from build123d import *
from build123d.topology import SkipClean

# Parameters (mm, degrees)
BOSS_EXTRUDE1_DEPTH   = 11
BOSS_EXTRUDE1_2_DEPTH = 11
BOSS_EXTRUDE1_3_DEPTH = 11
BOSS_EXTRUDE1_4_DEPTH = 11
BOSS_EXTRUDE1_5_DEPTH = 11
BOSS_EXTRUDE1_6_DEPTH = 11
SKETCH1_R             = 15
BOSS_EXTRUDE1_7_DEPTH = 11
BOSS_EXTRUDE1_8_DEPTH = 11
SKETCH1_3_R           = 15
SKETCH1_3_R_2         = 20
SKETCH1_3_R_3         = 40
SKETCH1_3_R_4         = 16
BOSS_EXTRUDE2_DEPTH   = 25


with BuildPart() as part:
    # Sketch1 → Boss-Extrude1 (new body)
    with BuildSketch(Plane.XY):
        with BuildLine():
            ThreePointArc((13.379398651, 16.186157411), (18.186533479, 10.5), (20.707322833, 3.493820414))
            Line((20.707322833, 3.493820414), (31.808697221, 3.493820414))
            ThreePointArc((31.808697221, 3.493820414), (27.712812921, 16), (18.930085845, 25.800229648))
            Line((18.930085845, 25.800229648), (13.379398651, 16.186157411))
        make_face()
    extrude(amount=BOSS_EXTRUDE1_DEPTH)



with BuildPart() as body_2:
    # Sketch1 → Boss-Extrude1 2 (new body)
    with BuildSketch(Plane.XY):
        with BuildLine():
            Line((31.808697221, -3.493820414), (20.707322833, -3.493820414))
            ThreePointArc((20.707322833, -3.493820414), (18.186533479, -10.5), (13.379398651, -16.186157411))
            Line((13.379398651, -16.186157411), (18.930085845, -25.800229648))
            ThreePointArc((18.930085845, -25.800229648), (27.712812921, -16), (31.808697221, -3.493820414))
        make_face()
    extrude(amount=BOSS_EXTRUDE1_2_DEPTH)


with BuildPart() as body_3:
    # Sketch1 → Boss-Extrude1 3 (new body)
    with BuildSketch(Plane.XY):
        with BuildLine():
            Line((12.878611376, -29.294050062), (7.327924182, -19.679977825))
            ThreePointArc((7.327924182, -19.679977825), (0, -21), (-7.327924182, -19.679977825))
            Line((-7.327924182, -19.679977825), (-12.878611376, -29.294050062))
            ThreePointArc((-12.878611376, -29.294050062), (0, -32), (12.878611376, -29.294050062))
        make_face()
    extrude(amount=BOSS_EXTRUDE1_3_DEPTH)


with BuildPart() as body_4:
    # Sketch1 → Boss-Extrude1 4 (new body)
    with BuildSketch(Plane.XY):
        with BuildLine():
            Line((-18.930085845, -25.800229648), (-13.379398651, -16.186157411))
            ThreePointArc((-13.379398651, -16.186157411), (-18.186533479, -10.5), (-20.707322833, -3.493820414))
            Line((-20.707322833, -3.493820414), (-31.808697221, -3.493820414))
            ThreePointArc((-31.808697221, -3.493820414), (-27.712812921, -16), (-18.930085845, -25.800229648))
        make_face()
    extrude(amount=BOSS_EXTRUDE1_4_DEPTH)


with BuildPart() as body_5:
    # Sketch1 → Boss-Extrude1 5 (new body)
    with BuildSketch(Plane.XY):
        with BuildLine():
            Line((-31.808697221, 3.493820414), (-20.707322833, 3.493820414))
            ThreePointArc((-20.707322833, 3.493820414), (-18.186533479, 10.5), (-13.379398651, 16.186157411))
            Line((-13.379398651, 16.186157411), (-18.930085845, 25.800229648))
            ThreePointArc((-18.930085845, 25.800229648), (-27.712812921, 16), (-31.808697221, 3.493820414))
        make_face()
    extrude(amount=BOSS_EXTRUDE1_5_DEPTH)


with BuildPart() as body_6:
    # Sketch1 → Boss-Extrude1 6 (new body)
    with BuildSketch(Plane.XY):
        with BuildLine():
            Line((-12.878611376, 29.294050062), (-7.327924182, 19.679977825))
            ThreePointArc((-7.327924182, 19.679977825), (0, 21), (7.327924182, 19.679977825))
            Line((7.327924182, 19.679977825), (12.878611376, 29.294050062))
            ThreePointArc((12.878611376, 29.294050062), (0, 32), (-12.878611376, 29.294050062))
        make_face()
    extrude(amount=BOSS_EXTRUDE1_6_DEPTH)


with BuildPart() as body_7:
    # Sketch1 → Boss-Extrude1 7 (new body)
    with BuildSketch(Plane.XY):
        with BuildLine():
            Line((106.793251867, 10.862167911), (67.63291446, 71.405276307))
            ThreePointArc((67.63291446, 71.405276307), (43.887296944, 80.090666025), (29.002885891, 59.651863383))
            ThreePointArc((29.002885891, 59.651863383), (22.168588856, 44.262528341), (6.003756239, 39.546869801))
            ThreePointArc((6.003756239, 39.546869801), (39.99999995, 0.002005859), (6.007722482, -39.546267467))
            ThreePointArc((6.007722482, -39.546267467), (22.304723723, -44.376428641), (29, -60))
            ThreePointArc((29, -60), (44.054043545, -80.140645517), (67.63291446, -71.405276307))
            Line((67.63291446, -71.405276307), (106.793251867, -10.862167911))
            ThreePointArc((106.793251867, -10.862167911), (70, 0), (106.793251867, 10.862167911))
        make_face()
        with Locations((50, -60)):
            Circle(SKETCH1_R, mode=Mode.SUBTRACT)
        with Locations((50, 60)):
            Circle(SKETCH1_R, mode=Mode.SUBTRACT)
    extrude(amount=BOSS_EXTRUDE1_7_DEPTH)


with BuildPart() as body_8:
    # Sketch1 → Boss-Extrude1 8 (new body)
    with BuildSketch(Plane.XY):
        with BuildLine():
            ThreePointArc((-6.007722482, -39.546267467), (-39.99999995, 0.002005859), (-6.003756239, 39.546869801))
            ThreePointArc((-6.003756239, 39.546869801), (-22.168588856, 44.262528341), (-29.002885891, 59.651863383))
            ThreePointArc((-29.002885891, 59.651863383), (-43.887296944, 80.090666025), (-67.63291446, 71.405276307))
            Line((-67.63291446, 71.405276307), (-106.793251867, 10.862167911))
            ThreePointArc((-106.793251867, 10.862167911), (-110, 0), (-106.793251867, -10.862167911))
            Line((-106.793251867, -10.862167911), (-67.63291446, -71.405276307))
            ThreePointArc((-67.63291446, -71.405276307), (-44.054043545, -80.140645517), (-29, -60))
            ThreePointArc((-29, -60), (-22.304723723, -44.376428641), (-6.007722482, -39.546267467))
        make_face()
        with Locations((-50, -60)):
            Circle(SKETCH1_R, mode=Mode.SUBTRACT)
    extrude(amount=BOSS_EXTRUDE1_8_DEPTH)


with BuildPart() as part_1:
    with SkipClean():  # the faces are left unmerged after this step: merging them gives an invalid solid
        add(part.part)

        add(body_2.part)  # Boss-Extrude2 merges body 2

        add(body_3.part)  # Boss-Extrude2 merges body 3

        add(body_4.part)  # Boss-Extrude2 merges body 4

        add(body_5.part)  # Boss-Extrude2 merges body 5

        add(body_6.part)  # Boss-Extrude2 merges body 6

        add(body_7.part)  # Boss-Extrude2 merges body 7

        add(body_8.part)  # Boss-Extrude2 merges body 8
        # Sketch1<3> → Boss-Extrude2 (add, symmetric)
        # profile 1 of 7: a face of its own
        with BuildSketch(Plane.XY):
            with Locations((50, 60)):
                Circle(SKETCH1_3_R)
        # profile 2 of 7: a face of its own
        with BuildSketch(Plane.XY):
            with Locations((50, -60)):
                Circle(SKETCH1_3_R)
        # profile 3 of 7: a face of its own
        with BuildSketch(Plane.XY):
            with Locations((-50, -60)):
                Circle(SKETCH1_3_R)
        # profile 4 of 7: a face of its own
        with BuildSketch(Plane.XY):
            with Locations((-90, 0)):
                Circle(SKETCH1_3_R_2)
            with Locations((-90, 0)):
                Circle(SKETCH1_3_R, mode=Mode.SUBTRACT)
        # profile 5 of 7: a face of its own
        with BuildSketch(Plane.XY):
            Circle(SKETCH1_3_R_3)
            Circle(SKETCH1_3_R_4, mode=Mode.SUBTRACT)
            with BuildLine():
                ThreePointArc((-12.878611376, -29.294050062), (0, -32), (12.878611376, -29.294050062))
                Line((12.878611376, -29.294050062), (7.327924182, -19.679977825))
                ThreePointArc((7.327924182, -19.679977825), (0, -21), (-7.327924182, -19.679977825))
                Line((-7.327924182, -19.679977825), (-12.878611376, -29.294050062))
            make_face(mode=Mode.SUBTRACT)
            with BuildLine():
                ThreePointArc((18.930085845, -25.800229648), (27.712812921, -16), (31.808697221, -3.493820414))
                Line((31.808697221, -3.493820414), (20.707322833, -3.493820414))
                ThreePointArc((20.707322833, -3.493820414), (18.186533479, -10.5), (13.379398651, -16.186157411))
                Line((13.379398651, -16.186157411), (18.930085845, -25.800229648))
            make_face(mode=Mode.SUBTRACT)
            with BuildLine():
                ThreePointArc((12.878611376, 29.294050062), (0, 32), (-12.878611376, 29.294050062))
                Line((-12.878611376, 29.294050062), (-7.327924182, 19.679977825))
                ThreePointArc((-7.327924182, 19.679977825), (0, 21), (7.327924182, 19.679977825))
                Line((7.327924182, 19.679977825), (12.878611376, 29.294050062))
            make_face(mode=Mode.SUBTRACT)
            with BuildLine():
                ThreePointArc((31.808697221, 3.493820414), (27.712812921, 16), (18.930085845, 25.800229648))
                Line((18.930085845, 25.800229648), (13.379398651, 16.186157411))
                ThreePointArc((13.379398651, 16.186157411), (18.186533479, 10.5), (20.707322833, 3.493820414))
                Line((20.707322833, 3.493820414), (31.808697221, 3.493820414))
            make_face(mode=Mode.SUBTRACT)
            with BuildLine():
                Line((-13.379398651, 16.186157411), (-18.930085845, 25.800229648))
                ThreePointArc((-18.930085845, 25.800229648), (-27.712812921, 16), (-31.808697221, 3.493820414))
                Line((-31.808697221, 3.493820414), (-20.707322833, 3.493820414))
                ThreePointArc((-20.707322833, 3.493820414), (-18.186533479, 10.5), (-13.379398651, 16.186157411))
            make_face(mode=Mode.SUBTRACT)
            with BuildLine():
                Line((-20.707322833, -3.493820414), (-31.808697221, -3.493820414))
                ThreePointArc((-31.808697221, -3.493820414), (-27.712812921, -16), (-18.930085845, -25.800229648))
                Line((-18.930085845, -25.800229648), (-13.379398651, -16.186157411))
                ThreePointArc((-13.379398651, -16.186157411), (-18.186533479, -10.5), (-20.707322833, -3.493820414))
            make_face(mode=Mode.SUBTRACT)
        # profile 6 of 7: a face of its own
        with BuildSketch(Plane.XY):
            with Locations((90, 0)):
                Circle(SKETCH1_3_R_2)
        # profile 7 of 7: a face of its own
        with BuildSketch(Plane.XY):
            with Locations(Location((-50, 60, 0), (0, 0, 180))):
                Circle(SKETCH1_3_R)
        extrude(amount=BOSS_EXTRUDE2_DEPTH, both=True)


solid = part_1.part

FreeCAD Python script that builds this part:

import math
import FreeCAD as App
import Part
import Sketcher
Q = App.Units.Quantity

doc = App.newDocument("Part")
body = doc.addObject("PartDesign::Body", "Body")

# Sketch on XY plane
sketch1 = body.newObject("Sketcher::SketchObject", "Sketch")
sketch1.AttachmentSupport = (doc.getObject("XY_Plane"), [""])
sketch1.MapMode = "FlatFace"
sketch1.addGeometry(Part.ArcOfCircle(Part.Circle(App.Vector(0, 0, 0), App.Vector(0, 0, 1), 21), math.radians(10), math.radians(50)), False)
sketch1.addGeometry(Part.LineSegment(App.Vector(21, 3, 0), App.Vector(32, 3, 0)), False)
sketch1.addGeometry(Part.ArcOfCircle(Part.Circle(App.Vector(0, 0, 0), App.Vector(0, 0, 1), 32), math.radians(6), math.radians(54)), False)
sketch1.addGeometry(Part.LineSegment(App.Vector(19, 26, 0), App.Vector(13, 16, 0)), False)
sketch1.addConstraint(Sketcher.Constraint("Coincident", 0, 1, 1, 1))
sketch1.addConstraint(Sketcher.Constraint("Coincident", 1, 2, 2, 1))
sketch1.addConstraint(Sketcher.Constraint("Coincident", 2, 2, 3, 1))
sketch1.addConstraint(Sketcher.Constraint("Coincident", 3, 2, 0, 2))
sketch1.addConstraint(Sketcher.Constraint("Horizontal", 1))
sketch1.addConstraint(Sketcher.Constraint("Coincident", 0, 3, -1, 1))
sketch1.addConstraint(Sketcher.Constraint("Coincident", 2, 3, -1, 1))
sketch1.addConstraint(Sketcher.Constraint("Radius", 0, 21.0))
sketch1.addConstraint(Sketcher.Constraint("Radius", 2, 32.0))
sketch1.addConstraint(Sketcher.Constraint("Angle", 3, Q("-120 deg")))
sketch1.addConstraint(Sketcher.Constraint("DistanceX", -1, 1, 3, 2, 13.379399))
sketch1.addConstraint(Sketcher.Constraint("DistanceX", 3, 2, 1, 2, 18.429299))
pad1 = body.newObject("PartDesign::Pad", "Pad")
pad1.Profile = sketch1
pad1.Length = 11
body2 = doc.addObject("PartDesign::Body", "Body001")

# Sketch on XY plane
sketch2 = body2.newObject("Sketcher::SketchObject", "Sketch001")
sketch2.AttachmentSupport = (doc.getObject("XY_Plane001"), [""])
sketch2.MapMode = "FlatFace"
sketch2.addGeometry(Part.LineSegment(App.Vector(32, -3, 0), App.Vector(21, -3, 0)), False)
sketch2.addGeometry(Part.ArcOfCircle(Part.Circle(App.Vector(0, 0, 0), App.Vector(0, 0, 1), 21), math.radians(-50), math.radians(-10)), False)
sketch2.addGeometry(Part.LineSegment(App.Vector(13, -16, 0), App.Vector(19, -26, 0)), False)
sketch2.addGeometry(Part.ArcOfCircle(Part.Circle(App.Vector(0, 0, 0), App.Vector(0, 0, 1), 32), math.radians(-54), math.radians(-6)), False)
sketch2.addConstraint(Sketcher.Constraint("Coincident", 0, 2, 1, 2))
sketch2.addConstraint(Sketcher.Constraint("Coincident", 1, 1, 2, 1))
sketch2.addConstraint(Sketcher.Constraint("Coincident", 2, 2, 3, 1))
sketch2.addConstraint(Sketcher.Constraint("Coincident", 3, 2, 0, 1))
sketch2.addConstraint(Sketcher.Constraint("Horizontal", 0))
sketch2.addConstraint(Sketcher.Constraint("Coincident", 1, 3, -1, 1))
sketch2.addConstraint(Sketcher.Constraint("Coincident", 3, 3, -1, 1))
sketch2.addConstraint(Sketcher.Constraint("Radius", 1, 21.0))
sketch2.addConstraint(Sketcher.Constraint("Radius", 3, 32.0))
sketch2.addConstraint(Sketcher.Constraint("Angle", 2, Q("-60 deg")))
sketch2.addConstraint(Sketcher.Constraint("DistanceX", -1, 1, 1, 1, 13.379399))
sketch2.addConstraint(Sketcher.Constraint("DistanceX", 1, 1, 3, 2, 18.429299))
pad2 = body2.newObject("PartDesign::Pad", "Pad001")
pad2.Profile = sketch2
pad2.Length = 11
body3 = doc.addObject("PartDesign::Body", "Body002")

# Sketch on XY plane
sketch3 = body3.newObject("Sketcher::SketchObject", "Sketch002")
sketch3.AttachmentSupport = (doc.getObject("XY_Plane002"), [""])
sketch3.MapMode = "FlatFace"
sketch3.addGeometry(Part.LineSegment(App.Vector(13, -29, 0), App.Vector(7, -20, 0)), False)
sketch3.addGeometry(Part.ArcOfCircle(Part.Circle(App.Vector(0, 0, 0), App.Vector(0, 0, 1), 21), math.radians(-110), math.radians(-70)), False)
sketch3.addGeometry(Part.LineSegment(App.Vector(-7, -20, 0), App.Vector(-13, -29, 0)), False)
sketch3.addGeometry(Part.ArcOfCircle(Part.Circle(App.Vector(0, 0, 0), App.Vector(0, 0, 1), 32), math.radians(-114), math.radians(-66)), False)
sketch3.addConstraint(Sketcher.Constraint("Coincident", 0, 2, 1, 2))
sketch3.addConstraint(Sketcher.Constraint("Coincident", 1, 1, 2, 1))
sketch3.addConstraint(Sketcher.Constraint("Coincident", 2, 2, 3, 1))
sketch3.addConstraint(Sketcher.Constraint("Coincident", 3, 2, 0, 1))
sketch3.addConstraint(Sketcher.Constraint("Coincident", 1, 3, -1, 1))
sketch3.addConstraint(Sketcher.Constraint("Coincident", 3, 3, -1, 1))
sketch3.addConstraint(Sketcher.Constraint("Horizontal", 0, 2, 1, 1))
sketch3.addConstraint(Sketcher.Constraint("Horizontal", 2, 2, 3, 2))
sketch3.addConstraint(Sketcher.Constraint("Radius", 1, 21.0))
sketch3.addConstraint(Sketcher.Constraint("Radius", 3, 32.0))
sketch3.addConstraint(Sketcher.Constraint("Angle", 0, Q("120 deg")))
sketch3.addConstraint(Sketcher.Constraint("DistanceX", 2, 2, -1, 1, 12.878611))
pad3 = body3.newObject("PartDesign::Pad", "Pad002")
pad3.Profile = sketch3
pad3.Length = 11
body4 = doc.addObject("PartDesign::Body", "Body003")

# Sketch on XY plane
sketch4 = body4.newObject("Sketcher::SketchObject", "Sketch003")
sketch4.AttachmentSupport = (doc.getObject("XY_Plane003"), [""])
sketch4.MapMode = "FlatFace"
sketch4.addGeometry(Part.LineSegment(App.Vector(-19, -26, 0), App.Vector(-13, -16, 0)), False)
sketch4.addGeometry(Part.ArcOfCircle(Part.Circle(App.Vector(0, 0, 0), App.Vector(0, 0, 1), 21), math.radians(-170), math.radians(-130)), False)
sketch4.addGeometry(Part.LineSegment(App.Vector(-21, -3, 0), App.Vector(-32, -3, 0)), False)
sketch4.addGeometry(Part.ArcOfCircle(Part.Circle(App.Vector(0, 0, 0), App.Vector(0, 0, 1), 32), math.radians(-174), math.radians(-126)), False)
sketch4.addConstraint(Sketcher.Constraint("Coincident", 0, 2, 1, 2))
sketch4.addConstraint(Sketcher.Constraint("Coincident", 1, 1, 2, 1))
sketch4.addConstraint(Sketcher.Constraint("Coincident", 2, 2, 3, 1))
sketch4.addConstraint(Sketcher.Constraint("Coincident", 3, 2, 0, 1))
sketch4.addConstraint(Sketcher.Constraint("Horizontal", 2))
sketch4.addConstraint(Sketcher.Constraint("Coincident", 1, 3, -1, 1))
sketch4.addConstraint(Sketcher.Constraint("Coincident", 3, 3, -1, 1))
sketch4.addConstraint(Sketcher.Constraint("Radius", 1, 21.0))
sketch4.addConstraint(Sketcher.Constraint("Radius", 3, 32.0))
sketch4.addConstraint(Sketcher.Constraint("Angle", 0, Q("60 deg")))
sketch4.addConstraint(Sketcher.Constraint("DistanceX", 0, 2, -1, 1, 13.379399))
sketch4.addConstraint(Sketcher.Constraint("DistanceX", 2, 2, 0, 2, 18.429299))
pad4 = body4.newObject("PartDesign::Pad", "Pad003")
pad4.Profile = sketch4
pad4.Length = 11
body5 = doc.addObject("PartDesign::Body", "Body004")

# Sketch on XY plane
sketch5 = body5.newObject("Sketcher::SketchObject", "Sketch004")
sketch5.AttachmentSupport = (doc.getObject("XY_Plane004"), [""])
sketch5.MapMode = "FlatFace"
sketch5.addGeometry(Part.LineSegment(App.Vector(-32, 3, 0), App.Vector(-21, 3, 0)), False)
sketch5.addGeometry(Part.ArcOfCircle(Part.Circle(App.Vector(0, 0, 0), App.Vector(0, 0, 1), 21), math.radians(130), math.radians(170)), False)
sketch5.addGeometry(Part.LineSegment(App.Vector(-13, 16, 0), App.Vector(-19, 26, 0)), False)
sketch5.addGeometry(Part.ArcOfCircle(Part.Circle(App.Vector(0, 0, 0), App.Vector(0, 0, 1), 32), math.radians(126), math.radians(174)), False)
sketch5.addConstraint(Sketcher.Constraint("Coincident", 0, 2, 1, 2))
sketch5.addConstraint(Sketcher.Constraint("Coincident", 1, 1, 2, 1))
sketch5.addConstraint(Sketcher.Constraint("Coincident", 2, 2, 3, 1))
sketch5.addConstraint(Sketcher.Constraint("Coincident", 3, 2, 0, 1))
sketch5.addConstraint(Sketcher.Constraint("Horizontal", 0))
sketch5.addConstraint(Sketcher.Constraint("Coincident", 1, 3, -1, 1))
sketch5.addConstraint(Sketcher.Constraint("Coincident", 3, 3, -1, 1))
sketch5.addConstraint(Sketcher.Constraint("Radius", 1, 21.0))
sketch5.addConstraint(Sketcher.Constraint("Radius", 3, 32.0))
sketch5.addConstraint(Sketcher.Constraint("Angle", 2, Q("120 deg")))
sketch5.addConstraint(Sketcher.Constraint("DistanceX", 1, 1, -1, 1, 13.379399))
sketch5.addConstraint(Sketcher.Constraint("DistanceX", 3, 2, 1, 1, 18.429299))
pad5 = body5.newObject("PartDesign::Pad", "Pad004")
pad5.Profile = sketch5
pad5.Length = 11
body6 = doc.addObject("PartDesign::Body", "Body005")

# Sketch on XY plane
sketch6 = body6.newObject("Sketcher::SketchObject", "Sketch005")
sketch6.AttachmentSupport = (doc.getObject("XY_Plane005"), [""])
sketch6.MapMode = "FlatFace"
sketch6.addGeometry(Part.LineSegment(App.Vector(-13, 29, 0), App.Vector(-7, 20, 0)), False)
sketch6.addGeometry(Part.ArcOfCircle(Part.Circle(App.Vector(0, 0, 0), App.Vector(0, 0, 1), 21), math.radians(70), math.radians(110)), False)
sketch6.addGeometry(Part.LineSegment(App.Vector(7, 20, 0), App.Vector(13, 29, 0)), False)
sketch6.addGeometry(Part.ArcOfCircle(Part.Circle(App.Vector(0, 0, 0), App.Vector(0, 0, 1), 32), math.radians(66), math.radians(114)), False)
sketch6.addConstraint(Sketcher.Constraint("Coincident", 0, 2, 1, 2))
sketch6.addConstraint(Sketcher.Constraint("Coincident", 1, 1, 2, 1))
sketch6.addConstraint(Sketcher.Constraint("Coincident", 2, 2, 3, 1))
sketch6.addConstraint(Sketcher.Constraint("Coincident", 3, 2, 0, 1))
sketch6.addConstraint(Sketcher.Constraint("Coincident", 1, 3, -1, 1))
sketch6.addConstraint(Sketcher.Constraint("Coincident", 3, 3, -1, 1))
sketch6.addConstraint(Sketcher.Constraint("Horizontal", 0, 2, 1, 1))
sketch6.addConstraint(Sketcher.Constraint("Horizontal", 2, 2, 3, 2))
sketch6.addConstraint(Sketcher.Constraint("Radius", 1, 21.0))
sketch6.addConstraint(Sketcher.Constraint("Radius", 3, 32.0))
sketch6.addConstraint(Sketcher.Constraint("Angle", 0, Q("-60 deg")))
sketch6.addConstraint(Sketcher.Constraint("DistanceX", -1, 1, 2, 2, 12.878611))
pad6 = body6.newObject("PartDesign::Pad", "Pad005")
pad6.Profile = sketch6
pad6.Length = 11
body7 = doc.addObject("PartDesign::Body", "Body006")

# Sketch on XY plane
sketch7 = body7.newObject("Sketcher::SketchObject", "Sketch006")
sketch7.AttachmentSupport = (doc.getObject("XY_Plane006"), [""])
sketch7.MapMode = "FlatFace"
sketch7.addGeometry(Part.LineSegment(App.Vector(107, 11, 0), App.Vector(68, 71, 0)), False)
sketch7.addGeometry(Part.ArcOfCircle(Part.Circle(App.Vector(50, 60, 0), App.Vector(0, 0, 1), 21), math.radians(33), math.radians(181)), False)
sketch7.addGeometry(Part.ArcOfCircle(Part.Circle(App.Vector(9, 59, 0), App.Vector(0, 0, 1), 20), math.radians(-99), math.radians(1)), False)
sketch7.addGeometry(Part.ArcOfCircle(Part.Circle(App.Vector(0, 0, 0), App.Vector(0, 0, 1), 40), math.radians(-81), math.radians(81)), False)
sketch7.addGeometry(Part.ArcOfCircle(Part.Circle(App.Vector(9, -59, 0), App.Vector(0, 0, 1), 20), math.radians(-2), math.radians(99)), False)
sketch7.addGeometry(Part.ArcOfCircle(Part.Circle(App.Vector(50, -60, 0), App.Vector(0, 0, 1), 21), math.radians(180), math.radians(327)), False)
sketch7.addGeometry(Part.LineSegment(App.Vector(68, -71, 0), App.Vector(107, -11, 0)), False)
sketch7.addGeometry(Part.ArcOfCircle(Part.Circle(App.Vector(90, 0, 0), App.Vector(0, 0, 1), 20), math.radians(33), math.radians(327)), False)
sketch7.addGeometry(Part.Circle(App.Vector(50, -60, 0), App.Vector(0, 0, 1), 15), False)
sketch7.addGeometry(Part.Circle(App.Vector(50, 60, 0), App.Vector(0, 0, 1), 15), False)
sketch7.addConstraint(Sketcher.Constraint("Tangent", 0, 2, 1, 1))
sketch7.addConstraint(Sketcher.Constraint("Tangent", 1, 2, 2, 2))
sketch7.addConstraint(Sketcher.Constraint("Tangent", 2, 1, 3, 2))
sketch7.addConstraint(Sketcher.Constraint("Tangent", 3, 1, 4, 2))
sketch7.addConstraint(Sketcher.Constraint("Coincident", 4, 1, 5, 1))
sketch7.addConstraint(Sketcher.Constraint("Tangent", 5, 2, 6, 1))
sketch7.addConstraint(Sketcher.Constraint("Tangent", 6, 2, 7, 2))
sketch7.addConstraint(Sketcher.Constraint("Tangent", 7, 1, 0, 1))
sketch7.addConstraint(Sketcher.Constraint("Coincident", 3, 3, -1, 1))
sketch7.addConstraint(Sketcher.Constraint("Coincident", 8, 3, 5, 3))
sketch7.addConstraint(Sketcher.Constraint("Coincident", 9, 3, 1, 3))
sketch7.addConstraint(Sketcher.Constraint("Equal", 2, 4))
sketch7.addConstraint(Sketcher.Constraint("Equal", 1, 5))
sketch7.addConstraint(Sketcher.Constraint("Equal", 4, 7))
sketch7.addConstraint(Sketcher.Constraint("Equal", 8, 9))
sketch7.addConstraint(Sketcher.Constraint("Symmetric", 1, 3, 5, 3, -1))
sketch7.addConstraint(Sketcher.Constraint("PointOnObject", 7, 3, -1))
sketch7.addConstraint(Sketcher.Constraint("Horizontal", 8, 3, 4, 1))
sketch7.addConstraint(Sketcher.Constraint("Diameter", 8, 30.0))
sketch7.addConstraint(Sketcher.Constraint("Radius", 1, 21.0))
sketch7.addConstraint(Sketcher.Constraint("Radius", 2, 20.0))
sketch7.addConstraint(Sketcher.Constraint("Radius", 3, 40.0))
sketch7.addConstraint(Sketcher.Constraint("DistanceX", -1, 1, 1, 3, 50.0))
sketch7.addConstraint(Sketcher.Constraint("DistanceY", -1, 1, 1, 3, 60.0))
sketch7.addConstraint(Sketcher.Constraint("DistanceX", -1, 1, 7, 3, 90.0))
pad7 = body7.newObject("PartDesign::Pad", "Pad006")
pad7.Profile = sketch7
pad7.Length = 11
body8 = doc.addObject("PartDesign::Body", "Body007")

# Sketch on XY plane
sketch8 = body8.newObject("Sketcher::SketchObject", "Sketch007")
sketch8.AttachmentSupport = (doc.getObject("XY_Plane007"), [""])
sketch8.MapMode = "FlatFace"
sketch8.addGeometry(Part.ArcOfCircle(Part.Circle(App.Vector(0, 0, 0), App.Vector(0, 0, 1), 40), math.radians(99), math.radians(261)), False)
sketch8.addGeometry(Part.ArcOfCircle(Part.Circle(App.Vector(-9, 59, 0), App.Vector(0, 0, 1), 20), math.radians(179), math.radians(279)), False)
sketch8.addGeometry(Part.ArcOfCircle(Part.Circle(App.Vector(-50, 60, 0), App.Vector(0, 0, 1), 21), math.radians(-1), math.radians(147)), False)
sketch8.addGeometry(Part.LineSegment(App.Vector(-68, 71, 0), App.Vector(-107, 11, 0)), False)
sketch8.addGeometry(Part.ArcOfCircle(Part.Circle(App.Vector(-90, 0, 0), App.Vector(0, 0, 1), 20), math.radians(147), math.radians(213)), False)
sketch8.addGeometry(Part.LineSegment(App.Vector(-107, -11, 0), App.Vector(-68, -71, 0)), False)
sketch8.addGeometry(Part.ArcOfCircle(Part.Circle(App.Vector(-50, -60, 0), App.Vector(0, 0, 1), 21), math.radians(-147), math.radians(0)), False)
sketch8.addGeometry(Part.ArcOfCircle(Part.Circle(App.Vector(-9, -59, 0), App.Vector(0, 0, 1), 20), math.radians(81), math.radians(182)), False)
sketch8.addGeometry(Part.Circle(App.Vector(-50, -60, 0), App.Vector(0, 0, 1), 15), False)
sketch8.addConstraint(Sketcher.Constraint("Tangent", 0, 1, 1, 2))
sketch8.addConstraint(Sketcher.Constraint("Tangent", 1, 1, 2, 1))
sketch8.addConstraint(Sketcher.Constraint("Tangent", 2, 2, 3, 1))
sketch8.addConstraint(Sketcher.Constraint("Tangent", 3, 2, 4, 1))
sketch8.addConstraint(Sketcher.Constraint("Tangent", 4, 2, 5, 1))
sketch8.addConstraint(Sketcher.Constraint("Tangent", 5, 2, 6, 1))
sketch8.addConstraint(Sketcher.Constraint("Coincident", 6, 2, 7, 2))
sketch8.addConstraint(Sketcher.Constraint("Tangent", 7, 1, 0, 2))
sketch8.addConstraint(Sketcher.Constraint("Coincident", 0, 3, -1, 1))
sketch8.addConstraint(Sketcher.Constraint("Coincident", 8, 3, 6, 3))
sketch8.addConstraint(Sketcher.Constraint("Equal", 1, 4))
sketch8.addConstraint(Sketcher.Constraint("Equal", 2, 6))
sketch8.addConstraint(Sketcher.Constraint("Equal", 4, 7))
sketch8.addConstraint(Sketcher.Constraint("Symmetric", 2, 3, 6, 3, -1))
sketch8.addConstraint(Sketcher.Constraint("PointOnObject", 4, 3, -1))
sketch8.addConstraint(Sketcher.Constraint("Horizontal", 8, 3, 6, 2))
sketch8.addConstraint(Sketcher.Constraint("Diameter", 8, 30.0))
sketch8.addConstraint(Sketcher.Constraint("Radius", 0, 40.0))
sketch8.addConstraint(Sketcher.Constraint("Radius", 1, 20.0))
sketch8.addConstraint(Sketcher.Constraint("Radius", 2, 21.0))
sketch8.addConstraint(Sketcher.Constraint("DistanceX", 2, 3, -1, 1, 50.0))
sketch8.addConstraint(Sketcher.Constraint("DistanceY", -1, 1, 2, 3, 60.0))
sketch8.addConstraint(Sketcher.Constraint("DistanceX", 4, 3, -1, 1, 90.0))
pad8 = body8.newObject("PartDesign::Pad", "Pad007")
pad8.Profile = sketch8
pad8.Length = 11
body.AllowCompound = True
doc.recompute()

boolean = body.newObject("PartDesign::Boolean", "Boolean")
boolean.Type = "Fuse"
boolean.addObjects([body2])
doc.recompute()

boolean2 = body.newObject("PartDesign::Boolean", "Boolean001")
boolean2.Type = "Fuse"
boolean2.addObjects([body3])
doc.recompute()

boolean3 = body.newObject("PartDesign::Boolean", "Boolean002")
boolean3.Type = "Fuse"
boolean3.addObjects([body4])
doc.recompute()

boolean4 = body.newObject("PartDesign::Boolean", "Boolean003")
boolean4.Type = "Fuse"
boolean4.addObjects([body5])
doc.recompute()

boolean5 = body.newObject("PartDesign::Boolean", "Boolean004")
boolean5.Type = "Fuse"
boolean5.addObjects([body6])
doc.recompute()

boolean6 = body.newObject("PartDesign::Boolean", "Boolean005")
boolean6.Type = "Fuse"
boolean6.addObjects([body7])
doc.recompute()

boolean7 = body.newObject("PartDesign::Boolean", "Boolean006")
boolean7.Type = "Fuse"
boolean7.addObjects([body8])

# Sketch on XY plane
sketch9 = body.newObject("Sketcher::SketchObject", "Sketch008")
sketch9.AttachmentSupport = (doc.getObject("XY_Plane"), [""])
sketch9.MapMode = "FlatFace"
sketch9.addGeometry(Part.Circle(App.Vector(50, 60, 0), App.Vector(0, 0, 1), 15), False)
sketch9.addGeometry(Part.Circle(App.Vector(50, -60, 0), App.Vector(0, 0, 1), 15), False)
sketch9.addGeometry(Part.Circle(App.Vector(-50, -60, 0), App.Vector(0, 0, 1), 15), False)
sketch9.addGeometry(Part.Circle(App.Vector(-90, 0, 0), App.Vector(0, 0, 1), 20), False)
sketch9.addGeometry(Part.Circle(App.Vector(-90, 0, 0), App.Vector(0, 0, 1), 15), False)
sketch9.addGeometry(Part.Circle(App.Vector(0, 0, 0), App.Vector(0, 0, 1), 40), False)
sketch9.addGeometry(Part.LineSegment(App.Vector(-32, -3, 0), App.Vector(-21, -3, 0)), False)
sketch9.addGeometry(Part.ArcOfCircle(Part.Circle(App.Vector(0, 0, 0), App.Vector(0, 0, 1), 21), math.radians(-170), math.radians(-130)), False)
sketch9.addGeometry(Part.LineSegment(App.Vector(-13, -16, 0), App.Vector(-19, -26, 0)), False)
sketch9.addGeometry(Part.ArcOfCircle(Part.Circle(App.Vector(0, 0, 0), App.Vector(0, 0, 1), 32), math.radians(-174), math.radians(-126)), False)
sketch9.addGeometry(Part.ArcOfCircle(Part.Circle(App.Vector(0, 0, 0), App.Vector(0, 0, 1), 32), math.radians(-114), math.radians(-66)), False)
sketch9.addGeometry(Part.LineSegment(App.Vector(-13, -29, 0), App.Vector(-7, -20, 0)), False)
sketch9.addGeometry(Part.ArcOfCircle(Part.Circle(App.Vector(0, 0, 0), App.Vector(0, 0, 1), 21), math.radians(-110), math.radians(-70)), False)
sketch9.addGeometry(Part.LineSegment(App.Vector(7, -20, 0), App.Vector(13, -29, 0)), False)
sketch9.addGeometry(Part.ArcOfCircle(Part.Circle(App.Vector(0, 0, 0), App.Vector(0, 0, 1), 32), math.radians(-54), math.radians(-6)), False)
sketch9.addGeometry(Part.LineSegment(App.Vector(19, -26, 0), App.Vector(13, -16, 0)), False)
sketch9.addGeometry(Part.ArcOfCircle(Part.Circle(App.Vector(0, 0, 0), App.Vector(0, 0, 1), 21), math.radians(-50), math.radians(-10)), False)
sketch9.addGeometry(Part.LineSegment(App.Vector(21, -3, 0), App.Vector(32, -3, 0)), False)
sketch9.addGeometry(Part.LineSegment(App.Vector(-19, 26, 0), App.Vector(-13, 16, 0)), False)
sketch9.addGeometry(Part.ArcOfCircle(Part.Circle(App.Vector(0, 0, 0), App.Vector(0, 0, 1), 21), math.radians(130), math.radians(170)), False)
sketch9.addGeometry(Part.LineSegment(App.Vector(-21, 3, 0), App.Vector(-32, 3, 0)), False)
sketch9.addGeometry(Part.ArcOfCircle(Part.Circle(App.Vector(0, 0, 0), App.Vector(0, 0, 1), 32), math.radians(126), math.radians(174)), False)
sketch9.addGeometry(Part.Circle(App.Vector(0, 0, 0), App.Vector(0, 0, 1), 16), False)
sketch9.addGeometry(Part.ArcOfCircle(Part.Circle(App.Vector(0, 0, 0), App.Vector(0, 0, 1), 32), math.radians(6), math.radians(54)), False)
sketch9.addGeometry(Part.LineSegment(App.Vector(32, 3, 0), App.Vector(21, 3, 0)), False)
sketch9.addGeometry(Part.ArcOfCircle(Part.Circle(App.Vector(0, 0, 0), App.Vector(0, 0, 1), 21), math.radians(10), math.radians(50)), False)
sketch9.addGeometry(Part.LineSegment(App.Vector(13, 16, 0), App.Vector(19, 26, 0)), False)
sketch9.addGeometry(Part.ArcOfCircle(Part.Circle(App.Vector(0, 0, 0), App.Vector(0, 0, 1), 32), math.radians(66), math.radians(114)), False)
sketch9.addGeometry(Part.LineSegment(App.Vector(13, 29, 0), App.Vector(7, 20, 0)), False)
sketch9.addGeometry(Part.ArcOfCircle(Part.Circle(App.Vector(0, 0, 0), App.Vector(0, 0, 1), 21), math.radians(70), math.radians(110)), False)
sketch9.addGeometry(Part.LineSegment(App.Vector(-7, 20, 0), App.Vector(-13, 29, 0)), False)
sketch9.addGeometry(Part.Circle(App.Vector(90, 0, 0), App.Vector(0, 0, 1), 20), False)
sketch9.addGeometry(Part.Circle(App.Vector(-50, 60, 0), App.Vector(0, 0, 1), 15), False)
sketch9.addConstraint(Sketcher.Constraint("Coincident", 6, 2, 7, 1))
sketch9.addConstraint(Sketcher.Constraint("Coincident", 7, 2, 8, 1))
sketch9.addConstraint(Sketcher.Constraint("Coincident", 8, 2, 9, 2))
sketch9.addConstraint(Sketcher.Constraint("Coincident", 9, 1, 6, 1))
sketch9.addConstraint(Sketcher.Constraint("Coincident", 10, 1, 11, 1))
sketch9.addConstraint(Sketcher.Constraint("Coincident", 11, 2, 12, 1))
sketch9.addConstraint(Sketcher.Constraint("Coincident", 12, 2, 13, 1))
sketch9.addConstraint(Sketcher.Constraint("Coincident", 13, 2, 10, 2))
sketch9.addConstraint(Sketcher.Constraint("Coincident", 14, 1, 15, 1))
sketch9.addConstraint(Sketcher.Constraint("Coincident", 15, 2, 16, 1))
sketch9.addConstraint(Sketcher.Constraint("Coincident", 16, 2, 17, 1))
sketch9.addConstraint(Sketcher.Constraint("Coincident", 17, 2, 14, 2))
sketch9.addConstraint(Sketcher.Constraint("Coincident", 18, 2, 19, 1))
sketch9.addConstraint(Sketcher.Constraint("Coincident", 19, 2, 20, 1))
sketch9.addConstraint(Sketcher.Constraint("Coincident", 20, 2, 21, 2))
sketch9.addConstraint(Sketcher.Constraint("Coincident", 21, 1, 18, 1))
sketch9.addConstraint(Sketcher.Constraint("Coincident", 23, 1, 24, 1))
sketch9.addConstraint(Sketcher.Constraint("Coincident", 24, 2, 25, 1))
sketch9.addConstraint(Sketcher.Constraint("Coincident", 25, 2, 26, 1))
sketch9.addConstraint(Sketcher.Constraint("Coincident", 26, 2, 23, 2))
sketch9.addConstraint(Sketcher.Constraint("Coincident", 27, 1, 28, 1))
sketch9.addConstraint(Sketcher.Constraint("Coincident", 28, 2, 29, 1))
sketch9.addConstraint(Sketcher.Constraint("Coincident", 29, 2, 30, 1))
sketch9.addConstraint(Sketcher.Constraint("Coincident", 30, 2, 27, 2))
sketch9.addConstraint(Sketcher.Constraint("Horizontal", 6))
sketch9.addConstraint(Sketcher.Constraint("Horizontal", 17))
sketch9.addConstraint(Sketcher.Constraint("Horizontal", 20))
sketch9.addConstraint(Sketcher.Constraint("Horizontal", 24))
sketch9.addConstraint(Sketcher.Constraint("Coincident", 5, 3, -1, 1))
sketch9.addConstraint(Sketcher.Constraint("Coincident", 7, 3, -1, 1))
sketch9.addConstraint(Sketcher.Constraint("Coincident", 9, 3, -1, 1))
sketch9.addConstraint(Sketcher.Constraint("Coincident", 10, 3, -1, 1))
sketch9.addConstraint(Sketcher.Constraint("Coincident", 12, 3, -1, 1))
sketch9.addConstraint(Sketcher.Constraint("Coincident", 14, 3, -1, 1))
sketch9.addConstraint(Sketcher.Constraint("Coincident", 16, 3, -1, 1))
sketch9.addConstraint(Sketcher.Constraint("Coincident", 19, 3, -1, 1))
sketch9.addConstraint(Sketcher.Constraint("Coincident", 21, 3, -1, 1))
sketch9.addConstraint(Sketcher.Constraint("Coincident", 22, 3, -1, 1))
sketch9.addConstraint(Sketcher.Constraint("Coincident", 23, 3, -1, 1))
sketch9.addConstraint(Sketcher.Constraint("Coincident", 25, 3, -1, 1))
sketch9.addConstraint(Sketcher.Constraint("Coincident", 27, 3, -1, 1))
sketch9.addConstraint(Sketcher.Constraint("Coincident", 29, 3, -1, 1))
sketch9.addConstraint(Sketcher.Constraint("Coincident", 4, 3, 3, 3))
sketch9.addConstraint(Sketcher.Constraint("Equal", 0, 1))
sketch9.addConstraint(Sketcher.Constraint("Equal", 1, 2))
sketch9.addConstraint(Sketcher.Constraint("Equal", 2, 4))
sketch9.addConstraint(Sketcher.Constraint("Equal", 9, 10))
sketch9.addConstraint(Sketcher.Constraint("Equal", 7, 12))
sketch9.addConstraint(Sketcher.Constraint("Equal", 10, 14))
sketch9.addConstraint(Sketcher.Constraint("Equal", 12, 16))
sketch9.addConstraint(Sketcher.Constraint("Equal", 16, 19))
sketch9.addConstraint(Sketcher.Constraint("Equal", 14, 21))
sketch9.addConstraint(Sketcher.Constraint("Equal", 21, 23))
sketch9.addConstraint(Sketcher.Constraint("Equal", 19, 25))
sketch9.addConstraint(Sketcher.Constraint("Equal", 23, 27))
sketch9.addConstraint(Sketcher.Constraint("Equal", 25, 29))
sketch9.addConstraint(Sketcher.Constraint("Equal", 3, 31))
sketch9.addConstraint(Sketcher.Constraint("Equal", 4, 32))
sketch9.addConstraint(Sketcher.Constraint("Symmetric", 0, 3, 2, 3, -1, 1))
sketch9.addConstraint(Sketcher.Constraint("Symmetric", 3, 3, 31, 3, -1, 1))
sketch9.addConstraint(Sketcher.Constraint("Symmetric", 1, 3, 32, 3, -1, 1))
sketch9.addConstraint(Sketcher.Constraint("Symmetric", 1, 3, 2, 3, -2))
sketch9.addConstraint(Sketcher.Constraint("PointOnObject", 3, 3, -1))
sketch9.addConstraint(Sketcher.Constraint("Parallel", 8, 11))
sketch9.addConstraint(Sketcher.Constraint("Parallel", 13, 15))
sketch9.addConstraint(Sketcher.Constraint("Parallel", 15, 18))
sketch9.addConstraint(Sketcher.Constraint("Parallel", 11, 26))
sketch9.addConstraint(Sketcher.Constraint("Parallel", 26, 28))
sketch9.addConstraint(Sketcher.Constraint("Parallel", 18, 30))
sketch9.addConstraint(Sketcher.Constraint("Horizontal", 11, 2, 12, 2))
sketch9.addConstraint(Sketcher.Constraint("Horizontal", 10, 1, 13, 2))
sketch9.addConstraint(Sketcher.Constraint("Horizontal", 8, 2, 14, 1))
sketch9.addConstraint(Sketcher.Constraint("Horizontal", 9, 1, 16, 2))
sketch9.addConstraint(Sketcher.Constraint("Horizontal", 20, 2, 23, 1))
sketch9.addConstraint(Sketcher.Constraint("Horizontal", 18, 2, 25, 2))
sketch9.addConstraint(Sketcher.Constraint("Horizontal", 28, 2, 29, 2))
sketch9.addConstraint(Sketcher.Constraint("Vertical", 7, 2, 18, 2))
sketch9.addConstraint(Sketcher.Constraint("Vertical", 6, 2, 19, 2))
sketch9.addConstraint(Sketcher.Constraint("Vertical", 13, 2, 27, 1))
sketch9.addConstraint(Sketcher.Constraint("Equal", 8, 11))
sketch9.addConstraint(Sketcher.Constraint("Diameter", 0, 30.0))
sketch9.addConstraint(Sketcher.Constraint("Diameter", 3, 40.0))
sketch9.addConstraint(Sketcher.Constraint("Diameter", 5, 80.0))
sketch9.addConstraint(Sketcher.Constraint("Diameter", 22, 32.0))
sketch9.addConstraint(Sketcher.Constraint("Radius", 7, 21.0))
sketch9.addConstraint(Sketcher.Constraint("Radius", 9, 32.0))
sketch9.addConstraint(Sketcher.Constraint("Angle", 8, Q("-120 deg")))
sketch9.addConstraint(Sketcher.Constraint("DistanceX", -1, 1, 0, 3, 50.0))
sketch9.addConstraint(Sketcher.Constraint("DistanceY", -1, 1, 0, 3, 60.0))
sketch9.addConstraint(Sketcher.Constraint("DistanceX", 3, 3, -1, 1, 90.0))
sketch9.addConstraint(Sketcher.Constraint("DistanceX", 7, 2, -1, 1, 13.379399))
sketch9.addConstraint(Sketcher.Constraint("DistanceX", 9, 1, 7, 2, 18.429299))
pad9 = body.newObject("PartDesign::Pad", "Pad008")
pad9.Profile = sketch9
pad9.Length = 50
pad9.Midplane = True

doc.recompute()
